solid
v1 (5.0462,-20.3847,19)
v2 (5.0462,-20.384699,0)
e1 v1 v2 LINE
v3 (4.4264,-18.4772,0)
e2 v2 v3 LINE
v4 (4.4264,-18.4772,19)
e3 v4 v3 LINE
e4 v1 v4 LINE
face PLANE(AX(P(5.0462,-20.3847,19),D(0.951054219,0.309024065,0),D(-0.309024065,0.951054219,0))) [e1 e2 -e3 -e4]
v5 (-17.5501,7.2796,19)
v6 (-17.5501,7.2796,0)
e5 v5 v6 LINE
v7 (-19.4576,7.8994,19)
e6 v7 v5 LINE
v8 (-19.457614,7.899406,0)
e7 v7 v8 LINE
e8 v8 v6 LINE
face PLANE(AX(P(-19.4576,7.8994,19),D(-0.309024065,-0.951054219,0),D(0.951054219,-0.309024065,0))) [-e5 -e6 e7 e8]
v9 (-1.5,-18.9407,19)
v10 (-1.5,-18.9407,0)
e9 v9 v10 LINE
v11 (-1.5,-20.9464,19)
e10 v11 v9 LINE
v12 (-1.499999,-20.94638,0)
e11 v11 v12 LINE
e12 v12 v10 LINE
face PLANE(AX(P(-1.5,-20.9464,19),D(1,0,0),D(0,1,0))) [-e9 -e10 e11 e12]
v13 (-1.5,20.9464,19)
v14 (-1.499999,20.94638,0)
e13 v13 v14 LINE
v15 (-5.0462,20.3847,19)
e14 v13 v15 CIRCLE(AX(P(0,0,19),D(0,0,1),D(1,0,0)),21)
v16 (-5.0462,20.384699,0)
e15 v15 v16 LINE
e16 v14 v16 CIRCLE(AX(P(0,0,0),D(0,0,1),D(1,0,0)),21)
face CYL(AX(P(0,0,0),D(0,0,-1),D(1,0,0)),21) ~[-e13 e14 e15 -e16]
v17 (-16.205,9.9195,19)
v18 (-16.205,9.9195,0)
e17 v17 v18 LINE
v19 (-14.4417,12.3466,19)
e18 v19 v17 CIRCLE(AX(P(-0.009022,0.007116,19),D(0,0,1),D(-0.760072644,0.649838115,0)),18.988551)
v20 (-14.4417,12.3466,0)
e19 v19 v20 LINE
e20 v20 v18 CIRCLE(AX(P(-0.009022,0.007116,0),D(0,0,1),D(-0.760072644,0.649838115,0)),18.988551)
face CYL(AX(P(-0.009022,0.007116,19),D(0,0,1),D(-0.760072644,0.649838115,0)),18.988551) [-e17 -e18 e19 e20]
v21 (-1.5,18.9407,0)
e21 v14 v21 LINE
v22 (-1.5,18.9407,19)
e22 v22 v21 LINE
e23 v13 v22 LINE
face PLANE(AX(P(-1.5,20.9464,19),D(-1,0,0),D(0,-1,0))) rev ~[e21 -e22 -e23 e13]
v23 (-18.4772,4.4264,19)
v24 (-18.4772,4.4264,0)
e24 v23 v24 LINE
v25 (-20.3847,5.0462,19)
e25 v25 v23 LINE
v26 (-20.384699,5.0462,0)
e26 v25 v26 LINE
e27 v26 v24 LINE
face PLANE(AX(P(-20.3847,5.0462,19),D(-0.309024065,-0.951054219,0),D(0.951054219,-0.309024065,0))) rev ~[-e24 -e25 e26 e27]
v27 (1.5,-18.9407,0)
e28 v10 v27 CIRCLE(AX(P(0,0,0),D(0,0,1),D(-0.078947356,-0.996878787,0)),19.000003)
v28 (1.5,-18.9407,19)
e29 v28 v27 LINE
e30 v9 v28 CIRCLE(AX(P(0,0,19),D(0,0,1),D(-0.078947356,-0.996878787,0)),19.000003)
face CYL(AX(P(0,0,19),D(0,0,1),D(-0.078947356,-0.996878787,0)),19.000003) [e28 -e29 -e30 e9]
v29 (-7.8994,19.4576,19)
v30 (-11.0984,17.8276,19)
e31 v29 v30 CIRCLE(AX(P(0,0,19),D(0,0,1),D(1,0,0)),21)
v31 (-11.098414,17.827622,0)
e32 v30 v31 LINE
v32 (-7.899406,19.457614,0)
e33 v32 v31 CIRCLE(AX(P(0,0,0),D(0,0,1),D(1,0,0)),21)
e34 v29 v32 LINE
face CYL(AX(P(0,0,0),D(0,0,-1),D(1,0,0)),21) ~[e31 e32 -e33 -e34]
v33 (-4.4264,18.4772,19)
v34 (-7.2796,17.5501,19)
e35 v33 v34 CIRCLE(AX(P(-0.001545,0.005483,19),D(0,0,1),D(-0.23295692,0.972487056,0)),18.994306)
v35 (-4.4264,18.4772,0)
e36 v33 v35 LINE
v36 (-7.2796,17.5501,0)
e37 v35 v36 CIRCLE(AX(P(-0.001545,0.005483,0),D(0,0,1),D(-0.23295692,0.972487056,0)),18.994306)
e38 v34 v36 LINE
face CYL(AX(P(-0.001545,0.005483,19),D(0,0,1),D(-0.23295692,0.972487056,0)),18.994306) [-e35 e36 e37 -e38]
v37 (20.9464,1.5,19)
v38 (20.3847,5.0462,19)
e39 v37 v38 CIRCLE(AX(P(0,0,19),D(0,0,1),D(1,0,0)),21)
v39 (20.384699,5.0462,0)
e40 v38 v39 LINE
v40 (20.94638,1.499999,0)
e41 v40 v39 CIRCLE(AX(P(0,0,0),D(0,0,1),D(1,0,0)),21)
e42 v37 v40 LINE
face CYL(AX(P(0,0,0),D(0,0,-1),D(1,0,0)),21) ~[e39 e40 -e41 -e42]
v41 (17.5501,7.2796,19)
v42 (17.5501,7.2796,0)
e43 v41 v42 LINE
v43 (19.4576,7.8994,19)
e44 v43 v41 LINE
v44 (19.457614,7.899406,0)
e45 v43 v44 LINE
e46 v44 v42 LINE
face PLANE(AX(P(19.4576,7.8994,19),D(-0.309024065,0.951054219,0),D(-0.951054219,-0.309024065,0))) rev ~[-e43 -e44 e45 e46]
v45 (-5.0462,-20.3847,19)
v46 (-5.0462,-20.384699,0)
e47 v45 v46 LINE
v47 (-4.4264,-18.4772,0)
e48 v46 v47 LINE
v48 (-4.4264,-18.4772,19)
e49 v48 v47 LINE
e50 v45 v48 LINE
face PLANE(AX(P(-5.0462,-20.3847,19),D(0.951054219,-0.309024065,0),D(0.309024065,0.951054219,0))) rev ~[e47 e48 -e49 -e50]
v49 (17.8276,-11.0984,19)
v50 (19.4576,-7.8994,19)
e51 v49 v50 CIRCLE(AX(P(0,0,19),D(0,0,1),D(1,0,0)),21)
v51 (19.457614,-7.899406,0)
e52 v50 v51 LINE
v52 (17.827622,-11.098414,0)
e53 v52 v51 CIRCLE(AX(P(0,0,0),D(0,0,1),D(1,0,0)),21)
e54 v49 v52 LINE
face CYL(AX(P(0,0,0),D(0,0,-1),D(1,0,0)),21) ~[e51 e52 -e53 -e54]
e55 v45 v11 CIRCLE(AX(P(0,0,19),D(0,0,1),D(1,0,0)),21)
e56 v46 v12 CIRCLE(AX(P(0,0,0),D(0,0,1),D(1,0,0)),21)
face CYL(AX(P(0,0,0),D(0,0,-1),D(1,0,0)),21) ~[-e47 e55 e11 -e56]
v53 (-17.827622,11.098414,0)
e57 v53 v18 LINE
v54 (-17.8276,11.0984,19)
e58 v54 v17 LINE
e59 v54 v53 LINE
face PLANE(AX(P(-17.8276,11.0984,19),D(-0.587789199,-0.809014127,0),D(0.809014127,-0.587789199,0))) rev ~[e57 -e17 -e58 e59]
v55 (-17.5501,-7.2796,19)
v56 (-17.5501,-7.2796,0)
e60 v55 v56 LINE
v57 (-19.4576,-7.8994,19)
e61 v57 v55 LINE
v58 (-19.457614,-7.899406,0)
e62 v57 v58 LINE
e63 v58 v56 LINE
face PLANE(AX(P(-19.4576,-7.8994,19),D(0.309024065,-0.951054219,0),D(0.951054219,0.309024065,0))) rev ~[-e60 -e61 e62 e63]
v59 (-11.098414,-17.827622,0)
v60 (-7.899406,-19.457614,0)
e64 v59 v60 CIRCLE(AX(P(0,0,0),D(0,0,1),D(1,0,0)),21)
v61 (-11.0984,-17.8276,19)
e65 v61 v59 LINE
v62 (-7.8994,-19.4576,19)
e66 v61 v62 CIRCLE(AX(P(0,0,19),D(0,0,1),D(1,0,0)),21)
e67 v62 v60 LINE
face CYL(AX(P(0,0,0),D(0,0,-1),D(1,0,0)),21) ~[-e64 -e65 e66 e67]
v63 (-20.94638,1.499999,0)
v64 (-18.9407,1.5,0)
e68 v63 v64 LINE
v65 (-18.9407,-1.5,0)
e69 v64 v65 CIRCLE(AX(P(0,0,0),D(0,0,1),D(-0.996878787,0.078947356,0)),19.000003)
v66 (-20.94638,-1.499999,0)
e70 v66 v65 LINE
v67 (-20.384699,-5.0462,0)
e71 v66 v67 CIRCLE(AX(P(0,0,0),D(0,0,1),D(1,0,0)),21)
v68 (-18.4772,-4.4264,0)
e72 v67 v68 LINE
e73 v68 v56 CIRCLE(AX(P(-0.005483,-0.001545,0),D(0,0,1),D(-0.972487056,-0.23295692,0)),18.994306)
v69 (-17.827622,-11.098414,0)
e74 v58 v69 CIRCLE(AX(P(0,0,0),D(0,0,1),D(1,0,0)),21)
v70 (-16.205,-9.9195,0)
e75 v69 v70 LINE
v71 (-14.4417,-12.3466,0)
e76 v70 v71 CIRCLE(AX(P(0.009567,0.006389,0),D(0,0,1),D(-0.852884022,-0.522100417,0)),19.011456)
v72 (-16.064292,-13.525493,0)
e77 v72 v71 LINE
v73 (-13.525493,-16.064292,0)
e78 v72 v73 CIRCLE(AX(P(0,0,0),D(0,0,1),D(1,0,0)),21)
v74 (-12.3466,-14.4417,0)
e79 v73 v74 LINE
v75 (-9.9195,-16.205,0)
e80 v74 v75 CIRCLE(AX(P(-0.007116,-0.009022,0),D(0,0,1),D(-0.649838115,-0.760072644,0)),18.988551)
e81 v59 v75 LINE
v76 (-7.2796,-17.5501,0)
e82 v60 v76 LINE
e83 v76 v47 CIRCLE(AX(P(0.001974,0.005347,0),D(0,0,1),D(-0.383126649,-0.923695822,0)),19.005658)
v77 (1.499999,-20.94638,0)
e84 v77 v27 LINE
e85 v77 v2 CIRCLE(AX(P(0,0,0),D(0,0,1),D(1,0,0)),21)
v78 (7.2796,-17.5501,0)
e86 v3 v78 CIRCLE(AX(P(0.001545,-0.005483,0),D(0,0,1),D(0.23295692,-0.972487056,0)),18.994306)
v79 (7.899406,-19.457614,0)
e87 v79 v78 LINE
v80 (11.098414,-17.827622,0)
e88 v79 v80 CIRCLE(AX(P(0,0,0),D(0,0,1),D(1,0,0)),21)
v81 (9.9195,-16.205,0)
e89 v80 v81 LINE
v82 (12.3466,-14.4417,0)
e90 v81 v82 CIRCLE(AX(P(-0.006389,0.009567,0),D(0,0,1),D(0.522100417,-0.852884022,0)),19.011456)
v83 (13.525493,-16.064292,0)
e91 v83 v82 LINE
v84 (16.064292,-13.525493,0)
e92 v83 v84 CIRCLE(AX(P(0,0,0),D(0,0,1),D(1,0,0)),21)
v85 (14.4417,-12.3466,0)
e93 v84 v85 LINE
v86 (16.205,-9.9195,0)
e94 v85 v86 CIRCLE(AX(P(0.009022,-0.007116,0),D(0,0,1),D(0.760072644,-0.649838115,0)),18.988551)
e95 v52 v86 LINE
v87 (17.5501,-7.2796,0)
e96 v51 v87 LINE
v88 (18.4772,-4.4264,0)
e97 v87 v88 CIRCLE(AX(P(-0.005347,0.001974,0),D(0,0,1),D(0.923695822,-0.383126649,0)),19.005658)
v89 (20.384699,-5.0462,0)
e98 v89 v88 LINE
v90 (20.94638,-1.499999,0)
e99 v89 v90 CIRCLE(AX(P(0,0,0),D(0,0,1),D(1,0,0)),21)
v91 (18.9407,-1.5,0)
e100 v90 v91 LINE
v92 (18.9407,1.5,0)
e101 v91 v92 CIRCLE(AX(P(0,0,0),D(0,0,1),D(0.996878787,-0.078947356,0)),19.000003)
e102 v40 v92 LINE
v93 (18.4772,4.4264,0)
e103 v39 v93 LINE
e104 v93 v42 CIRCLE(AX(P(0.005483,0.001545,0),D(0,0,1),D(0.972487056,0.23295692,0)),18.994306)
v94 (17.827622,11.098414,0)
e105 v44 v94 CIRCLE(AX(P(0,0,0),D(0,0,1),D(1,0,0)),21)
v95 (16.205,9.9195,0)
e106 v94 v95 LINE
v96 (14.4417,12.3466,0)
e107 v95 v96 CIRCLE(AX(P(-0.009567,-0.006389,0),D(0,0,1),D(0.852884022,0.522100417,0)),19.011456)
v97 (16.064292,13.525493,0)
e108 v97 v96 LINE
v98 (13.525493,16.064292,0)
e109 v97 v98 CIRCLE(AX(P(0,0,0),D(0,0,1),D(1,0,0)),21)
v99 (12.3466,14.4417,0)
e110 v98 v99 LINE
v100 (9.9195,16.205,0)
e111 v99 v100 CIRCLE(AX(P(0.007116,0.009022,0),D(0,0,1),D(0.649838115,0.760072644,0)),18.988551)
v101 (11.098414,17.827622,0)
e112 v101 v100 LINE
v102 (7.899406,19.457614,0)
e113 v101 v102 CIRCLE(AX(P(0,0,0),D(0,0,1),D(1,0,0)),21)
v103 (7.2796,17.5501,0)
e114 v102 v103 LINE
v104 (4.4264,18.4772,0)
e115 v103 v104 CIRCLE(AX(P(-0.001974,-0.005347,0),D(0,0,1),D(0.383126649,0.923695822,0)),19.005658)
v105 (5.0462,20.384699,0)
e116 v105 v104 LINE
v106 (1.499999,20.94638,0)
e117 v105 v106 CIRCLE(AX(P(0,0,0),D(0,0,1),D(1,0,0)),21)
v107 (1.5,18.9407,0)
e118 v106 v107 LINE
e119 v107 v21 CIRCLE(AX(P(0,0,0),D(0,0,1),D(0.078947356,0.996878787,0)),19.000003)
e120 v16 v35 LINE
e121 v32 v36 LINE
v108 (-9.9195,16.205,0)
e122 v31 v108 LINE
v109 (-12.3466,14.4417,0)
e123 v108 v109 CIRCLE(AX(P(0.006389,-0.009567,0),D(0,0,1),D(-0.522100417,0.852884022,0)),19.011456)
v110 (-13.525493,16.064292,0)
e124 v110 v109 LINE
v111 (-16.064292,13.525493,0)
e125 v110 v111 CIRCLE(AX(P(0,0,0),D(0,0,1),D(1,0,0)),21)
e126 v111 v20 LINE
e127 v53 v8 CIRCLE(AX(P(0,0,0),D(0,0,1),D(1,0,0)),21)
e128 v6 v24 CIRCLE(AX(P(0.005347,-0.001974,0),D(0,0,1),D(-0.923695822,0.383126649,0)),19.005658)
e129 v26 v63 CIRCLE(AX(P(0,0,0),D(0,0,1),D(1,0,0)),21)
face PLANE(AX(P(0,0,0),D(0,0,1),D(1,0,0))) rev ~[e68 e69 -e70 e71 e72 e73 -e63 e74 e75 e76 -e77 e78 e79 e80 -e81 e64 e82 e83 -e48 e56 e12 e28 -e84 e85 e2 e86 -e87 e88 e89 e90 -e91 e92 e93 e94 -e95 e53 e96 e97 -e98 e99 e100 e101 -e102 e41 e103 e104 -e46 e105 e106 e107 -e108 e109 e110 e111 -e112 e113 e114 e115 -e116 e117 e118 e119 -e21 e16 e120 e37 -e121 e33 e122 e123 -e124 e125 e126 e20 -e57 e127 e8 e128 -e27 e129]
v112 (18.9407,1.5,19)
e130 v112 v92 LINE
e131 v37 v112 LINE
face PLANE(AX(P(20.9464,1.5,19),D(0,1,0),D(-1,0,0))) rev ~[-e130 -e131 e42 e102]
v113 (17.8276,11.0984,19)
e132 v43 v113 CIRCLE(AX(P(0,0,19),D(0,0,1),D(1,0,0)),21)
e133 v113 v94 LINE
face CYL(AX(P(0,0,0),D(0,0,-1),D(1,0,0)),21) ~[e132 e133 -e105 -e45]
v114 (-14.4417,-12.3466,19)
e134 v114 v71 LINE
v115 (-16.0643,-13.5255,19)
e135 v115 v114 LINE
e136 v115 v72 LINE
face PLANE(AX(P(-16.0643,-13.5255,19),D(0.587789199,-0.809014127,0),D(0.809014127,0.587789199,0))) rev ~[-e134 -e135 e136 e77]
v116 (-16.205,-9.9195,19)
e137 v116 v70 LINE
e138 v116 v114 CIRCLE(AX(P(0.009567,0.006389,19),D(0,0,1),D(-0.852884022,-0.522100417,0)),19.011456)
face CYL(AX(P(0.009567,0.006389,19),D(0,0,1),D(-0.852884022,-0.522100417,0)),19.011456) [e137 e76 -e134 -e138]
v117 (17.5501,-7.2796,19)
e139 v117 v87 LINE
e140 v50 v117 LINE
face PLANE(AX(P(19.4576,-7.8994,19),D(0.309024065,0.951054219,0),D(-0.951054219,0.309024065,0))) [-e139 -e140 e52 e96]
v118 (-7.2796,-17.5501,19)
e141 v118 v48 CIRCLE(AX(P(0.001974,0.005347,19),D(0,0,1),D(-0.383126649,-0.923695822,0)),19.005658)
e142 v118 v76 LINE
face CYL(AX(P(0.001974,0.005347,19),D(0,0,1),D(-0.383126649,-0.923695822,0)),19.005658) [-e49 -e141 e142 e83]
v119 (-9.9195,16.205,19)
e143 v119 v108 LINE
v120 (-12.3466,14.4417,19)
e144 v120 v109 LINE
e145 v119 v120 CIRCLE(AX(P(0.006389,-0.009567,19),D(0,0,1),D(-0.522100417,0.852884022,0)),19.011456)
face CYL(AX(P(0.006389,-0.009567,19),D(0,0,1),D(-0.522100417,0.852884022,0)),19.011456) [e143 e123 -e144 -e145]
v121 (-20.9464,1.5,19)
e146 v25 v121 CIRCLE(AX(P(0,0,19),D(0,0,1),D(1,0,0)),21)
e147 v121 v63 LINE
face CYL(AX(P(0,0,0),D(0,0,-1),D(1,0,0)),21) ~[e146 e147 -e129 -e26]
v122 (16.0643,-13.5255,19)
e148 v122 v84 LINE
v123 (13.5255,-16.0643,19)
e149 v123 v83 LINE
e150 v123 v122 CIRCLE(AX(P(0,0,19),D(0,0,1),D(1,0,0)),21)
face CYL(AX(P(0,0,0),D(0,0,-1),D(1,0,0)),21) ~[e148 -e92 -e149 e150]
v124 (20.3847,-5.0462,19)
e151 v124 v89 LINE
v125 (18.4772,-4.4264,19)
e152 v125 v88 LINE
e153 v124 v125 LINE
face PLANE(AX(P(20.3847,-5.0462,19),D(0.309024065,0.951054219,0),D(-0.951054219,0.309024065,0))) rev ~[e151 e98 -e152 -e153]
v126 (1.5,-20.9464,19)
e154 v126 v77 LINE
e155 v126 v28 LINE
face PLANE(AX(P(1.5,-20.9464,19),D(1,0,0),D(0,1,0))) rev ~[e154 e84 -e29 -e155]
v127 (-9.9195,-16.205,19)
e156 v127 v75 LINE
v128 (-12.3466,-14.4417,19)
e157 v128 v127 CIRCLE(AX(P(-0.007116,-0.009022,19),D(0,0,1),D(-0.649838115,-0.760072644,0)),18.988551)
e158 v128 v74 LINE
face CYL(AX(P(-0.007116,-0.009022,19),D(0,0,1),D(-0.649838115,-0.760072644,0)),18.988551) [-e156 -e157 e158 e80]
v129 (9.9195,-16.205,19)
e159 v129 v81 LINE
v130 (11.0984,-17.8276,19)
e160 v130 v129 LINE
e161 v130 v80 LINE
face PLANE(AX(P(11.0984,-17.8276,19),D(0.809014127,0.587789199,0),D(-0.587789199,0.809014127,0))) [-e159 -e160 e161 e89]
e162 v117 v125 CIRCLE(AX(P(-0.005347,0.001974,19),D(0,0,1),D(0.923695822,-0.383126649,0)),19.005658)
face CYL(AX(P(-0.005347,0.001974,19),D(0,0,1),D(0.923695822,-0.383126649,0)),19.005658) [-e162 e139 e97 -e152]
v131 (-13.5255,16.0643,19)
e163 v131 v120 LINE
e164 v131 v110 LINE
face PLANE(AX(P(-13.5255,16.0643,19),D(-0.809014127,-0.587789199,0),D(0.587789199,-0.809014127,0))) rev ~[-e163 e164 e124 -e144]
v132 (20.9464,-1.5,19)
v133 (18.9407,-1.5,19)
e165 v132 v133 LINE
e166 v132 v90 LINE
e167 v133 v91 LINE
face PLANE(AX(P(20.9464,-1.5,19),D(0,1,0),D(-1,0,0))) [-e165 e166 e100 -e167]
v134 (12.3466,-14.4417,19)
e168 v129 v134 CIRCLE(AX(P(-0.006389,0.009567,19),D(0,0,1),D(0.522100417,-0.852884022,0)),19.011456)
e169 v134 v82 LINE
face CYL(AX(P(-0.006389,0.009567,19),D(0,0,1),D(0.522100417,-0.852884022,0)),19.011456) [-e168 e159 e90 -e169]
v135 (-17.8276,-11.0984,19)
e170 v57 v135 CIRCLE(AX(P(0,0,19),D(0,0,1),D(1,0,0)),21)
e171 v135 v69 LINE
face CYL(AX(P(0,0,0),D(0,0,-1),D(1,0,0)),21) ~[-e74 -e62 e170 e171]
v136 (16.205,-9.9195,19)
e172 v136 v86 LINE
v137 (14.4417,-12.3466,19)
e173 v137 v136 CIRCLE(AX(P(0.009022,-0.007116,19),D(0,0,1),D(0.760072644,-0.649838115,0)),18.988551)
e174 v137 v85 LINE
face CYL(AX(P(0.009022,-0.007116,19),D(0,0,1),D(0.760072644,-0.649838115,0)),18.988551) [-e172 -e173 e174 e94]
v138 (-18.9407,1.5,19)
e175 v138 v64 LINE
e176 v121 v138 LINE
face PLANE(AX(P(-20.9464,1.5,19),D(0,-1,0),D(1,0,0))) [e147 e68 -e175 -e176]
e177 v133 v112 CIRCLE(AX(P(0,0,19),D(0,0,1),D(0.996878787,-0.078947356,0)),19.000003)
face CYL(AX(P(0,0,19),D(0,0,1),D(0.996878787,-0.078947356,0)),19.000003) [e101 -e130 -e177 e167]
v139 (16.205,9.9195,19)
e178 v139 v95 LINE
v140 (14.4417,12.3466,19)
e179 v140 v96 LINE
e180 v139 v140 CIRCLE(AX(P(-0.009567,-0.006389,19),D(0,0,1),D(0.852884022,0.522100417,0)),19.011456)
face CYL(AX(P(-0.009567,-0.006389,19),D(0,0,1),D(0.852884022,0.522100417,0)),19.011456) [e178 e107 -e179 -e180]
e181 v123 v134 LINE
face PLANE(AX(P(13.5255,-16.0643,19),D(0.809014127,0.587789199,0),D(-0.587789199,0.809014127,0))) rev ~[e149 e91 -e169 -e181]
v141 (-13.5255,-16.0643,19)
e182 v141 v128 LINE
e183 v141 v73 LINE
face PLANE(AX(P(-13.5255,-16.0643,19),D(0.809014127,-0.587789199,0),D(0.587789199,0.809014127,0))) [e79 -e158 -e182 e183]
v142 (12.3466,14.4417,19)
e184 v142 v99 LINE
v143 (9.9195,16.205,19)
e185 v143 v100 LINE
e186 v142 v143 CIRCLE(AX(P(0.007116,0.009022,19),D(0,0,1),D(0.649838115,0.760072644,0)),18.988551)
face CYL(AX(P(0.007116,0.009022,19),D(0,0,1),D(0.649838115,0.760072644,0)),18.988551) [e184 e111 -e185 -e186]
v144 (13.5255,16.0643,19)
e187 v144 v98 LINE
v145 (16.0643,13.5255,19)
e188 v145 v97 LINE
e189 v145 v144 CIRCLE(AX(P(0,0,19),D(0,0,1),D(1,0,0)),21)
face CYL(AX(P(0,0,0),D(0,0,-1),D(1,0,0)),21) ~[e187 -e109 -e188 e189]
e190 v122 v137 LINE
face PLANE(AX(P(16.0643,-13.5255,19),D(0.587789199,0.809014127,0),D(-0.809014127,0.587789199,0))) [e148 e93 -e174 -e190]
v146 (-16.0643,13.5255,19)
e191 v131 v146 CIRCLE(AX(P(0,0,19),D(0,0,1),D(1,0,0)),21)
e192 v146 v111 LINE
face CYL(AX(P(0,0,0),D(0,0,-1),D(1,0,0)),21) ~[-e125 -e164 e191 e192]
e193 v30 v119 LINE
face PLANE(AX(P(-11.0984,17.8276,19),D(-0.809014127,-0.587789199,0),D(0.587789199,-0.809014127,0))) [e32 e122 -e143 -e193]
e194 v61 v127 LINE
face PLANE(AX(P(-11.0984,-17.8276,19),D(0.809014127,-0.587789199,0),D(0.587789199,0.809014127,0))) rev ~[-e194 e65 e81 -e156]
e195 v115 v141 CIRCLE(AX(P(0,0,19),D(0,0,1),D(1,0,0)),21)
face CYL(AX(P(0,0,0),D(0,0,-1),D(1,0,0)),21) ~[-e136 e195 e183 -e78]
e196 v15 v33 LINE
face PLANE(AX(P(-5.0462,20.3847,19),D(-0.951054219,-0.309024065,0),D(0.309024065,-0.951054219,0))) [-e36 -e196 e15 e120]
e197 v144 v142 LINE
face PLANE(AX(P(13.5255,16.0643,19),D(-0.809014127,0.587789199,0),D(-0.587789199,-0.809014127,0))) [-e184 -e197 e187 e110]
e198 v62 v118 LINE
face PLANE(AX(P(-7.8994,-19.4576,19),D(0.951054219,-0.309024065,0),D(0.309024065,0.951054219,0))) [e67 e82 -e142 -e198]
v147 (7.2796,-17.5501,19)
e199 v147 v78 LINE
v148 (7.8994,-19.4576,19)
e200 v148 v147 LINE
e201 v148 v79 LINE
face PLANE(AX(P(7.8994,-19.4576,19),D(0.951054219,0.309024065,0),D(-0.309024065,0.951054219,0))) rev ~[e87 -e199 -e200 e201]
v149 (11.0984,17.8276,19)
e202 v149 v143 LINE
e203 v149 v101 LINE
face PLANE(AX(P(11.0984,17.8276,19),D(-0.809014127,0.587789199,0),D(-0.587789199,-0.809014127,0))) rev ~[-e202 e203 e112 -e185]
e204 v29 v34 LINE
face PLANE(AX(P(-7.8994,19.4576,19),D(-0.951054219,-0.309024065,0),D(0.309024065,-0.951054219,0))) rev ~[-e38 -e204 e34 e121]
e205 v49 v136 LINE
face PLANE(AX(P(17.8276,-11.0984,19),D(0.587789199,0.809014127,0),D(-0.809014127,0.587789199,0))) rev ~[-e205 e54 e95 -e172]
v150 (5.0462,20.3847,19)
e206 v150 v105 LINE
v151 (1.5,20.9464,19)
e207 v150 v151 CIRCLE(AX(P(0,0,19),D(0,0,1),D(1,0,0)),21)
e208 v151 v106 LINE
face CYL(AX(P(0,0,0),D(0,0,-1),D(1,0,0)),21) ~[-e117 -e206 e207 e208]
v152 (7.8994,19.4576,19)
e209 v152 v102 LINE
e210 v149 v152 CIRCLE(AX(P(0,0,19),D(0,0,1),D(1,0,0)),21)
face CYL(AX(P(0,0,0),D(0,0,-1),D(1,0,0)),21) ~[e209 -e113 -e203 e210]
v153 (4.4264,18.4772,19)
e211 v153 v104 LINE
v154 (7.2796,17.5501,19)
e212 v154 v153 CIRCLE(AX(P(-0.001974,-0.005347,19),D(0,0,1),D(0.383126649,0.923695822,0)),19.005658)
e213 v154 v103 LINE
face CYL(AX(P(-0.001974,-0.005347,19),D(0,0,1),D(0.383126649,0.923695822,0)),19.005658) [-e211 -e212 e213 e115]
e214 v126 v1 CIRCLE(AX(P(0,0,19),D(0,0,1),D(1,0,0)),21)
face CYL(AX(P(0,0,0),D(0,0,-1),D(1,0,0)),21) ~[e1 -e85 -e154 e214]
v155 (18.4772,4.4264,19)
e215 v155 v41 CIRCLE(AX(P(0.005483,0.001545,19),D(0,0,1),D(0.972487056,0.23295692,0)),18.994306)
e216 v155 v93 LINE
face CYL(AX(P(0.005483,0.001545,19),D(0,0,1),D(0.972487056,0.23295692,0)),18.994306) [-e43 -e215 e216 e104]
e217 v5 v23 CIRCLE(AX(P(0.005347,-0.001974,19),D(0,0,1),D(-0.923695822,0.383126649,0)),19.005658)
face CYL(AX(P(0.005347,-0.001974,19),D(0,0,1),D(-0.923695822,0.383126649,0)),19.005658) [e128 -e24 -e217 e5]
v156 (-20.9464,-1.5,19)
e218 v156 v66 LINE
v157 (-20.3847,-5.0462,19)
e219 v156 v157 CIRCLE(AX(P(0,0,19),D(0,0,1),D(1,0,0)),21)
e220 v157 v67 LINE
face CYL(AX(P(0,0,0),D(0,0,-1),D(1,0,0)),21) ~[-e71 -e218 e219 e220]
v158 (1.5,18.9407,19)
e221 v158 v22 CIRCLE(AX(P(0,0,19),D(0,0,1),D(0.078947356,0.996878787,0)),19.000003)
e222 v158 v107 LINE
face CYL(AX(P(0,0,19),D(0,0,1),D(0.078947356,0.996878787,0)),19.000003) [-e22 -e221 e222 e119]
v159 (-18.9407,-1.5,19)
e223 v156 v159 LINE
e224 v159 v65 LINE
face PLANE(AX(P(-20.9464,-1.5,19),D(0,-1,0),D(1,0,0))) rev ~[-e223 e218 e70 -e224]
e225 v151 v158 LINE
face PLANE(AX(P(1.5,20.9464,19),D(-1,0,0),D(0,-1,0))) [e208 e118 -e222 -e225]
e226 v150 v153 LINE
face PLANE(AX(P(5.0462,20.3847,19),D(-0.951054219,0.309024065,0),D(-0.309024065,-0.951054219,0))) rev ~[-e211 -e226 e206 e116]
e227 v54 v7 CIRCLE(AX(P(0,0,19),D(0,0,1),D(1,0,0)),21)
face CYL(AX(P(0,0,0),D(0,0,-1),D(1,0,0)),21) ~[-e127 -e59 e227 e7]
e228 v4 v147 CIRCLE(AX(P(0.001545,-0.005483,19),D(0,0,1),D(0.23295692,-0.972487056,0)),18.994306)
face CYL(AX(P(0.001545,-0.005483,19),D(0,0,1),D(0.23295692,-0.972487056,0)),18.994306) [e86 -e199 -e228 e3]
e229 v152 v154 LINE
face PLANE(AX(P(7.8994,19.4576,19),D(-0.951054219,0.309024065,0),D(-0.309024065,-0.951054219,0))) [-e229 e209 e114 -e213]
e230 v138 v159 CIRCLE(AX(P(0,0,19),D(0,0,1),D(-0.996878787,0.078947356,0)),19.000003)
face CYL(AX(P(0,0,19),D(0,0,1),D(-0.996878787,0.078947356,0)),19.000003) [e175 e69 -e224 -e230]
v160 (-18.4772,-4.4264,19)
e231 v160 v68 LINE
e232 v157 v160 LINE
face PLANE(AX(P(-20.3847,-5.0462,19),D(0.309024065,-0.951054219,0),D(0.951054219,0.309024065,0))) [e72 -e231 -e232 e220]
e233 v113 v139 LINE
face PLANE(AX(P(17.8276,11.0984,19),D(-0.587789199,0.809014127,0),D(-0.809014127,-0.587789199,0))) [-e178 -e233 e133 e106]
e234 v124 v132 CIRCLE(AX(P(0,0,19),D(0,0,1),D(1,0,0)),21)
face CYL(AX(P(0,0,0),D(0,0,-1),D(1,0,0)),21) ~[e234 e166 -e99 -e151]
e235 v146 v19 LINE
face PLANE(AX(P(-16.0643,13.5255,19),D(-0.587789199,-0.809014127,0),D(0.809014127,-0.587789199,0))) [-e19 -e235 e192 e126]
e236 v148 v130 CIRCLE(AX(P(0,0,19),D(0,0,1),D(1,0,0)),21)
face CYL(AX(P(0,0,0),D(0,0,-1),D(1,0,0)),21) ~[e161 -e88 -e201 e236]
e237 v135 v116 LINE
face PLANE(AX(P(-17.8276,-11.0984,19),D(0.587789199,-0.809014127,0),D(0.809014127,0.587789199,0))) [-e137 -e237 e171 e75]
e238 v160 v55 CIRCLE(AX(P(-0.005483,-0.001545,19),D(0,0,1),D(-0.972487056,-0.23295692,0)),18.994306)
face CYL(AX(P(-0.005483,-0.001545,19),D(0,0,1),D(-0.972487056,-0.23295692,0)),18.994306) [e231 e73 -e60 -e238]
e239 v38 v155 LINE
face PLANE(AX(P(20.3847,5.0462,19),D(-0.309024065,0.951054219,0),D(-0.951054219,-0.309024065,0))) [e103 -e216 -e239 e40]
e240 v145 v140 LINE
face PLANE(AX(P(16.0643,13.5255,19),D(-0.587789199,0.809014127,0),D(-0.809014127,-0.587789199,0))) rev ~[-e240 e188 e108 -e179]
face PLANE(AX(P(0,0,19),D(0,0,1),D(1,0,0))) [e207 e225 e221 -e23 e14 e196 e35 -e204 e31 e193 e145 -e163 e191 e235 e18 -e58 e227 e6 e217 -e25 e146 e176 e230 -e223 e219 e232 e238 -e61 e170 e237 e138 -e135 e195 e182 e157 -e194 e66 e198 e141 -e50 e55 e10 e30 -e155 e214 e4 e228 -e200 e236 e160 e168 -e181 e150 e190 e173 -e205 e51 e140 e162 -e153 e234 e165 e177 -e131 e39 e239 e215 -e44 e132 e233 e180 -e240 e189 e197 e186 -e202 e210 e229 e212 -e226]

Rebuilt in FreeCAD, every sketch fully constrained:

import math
import FreeCAD as App
import Part
import Sketcher

doc = App.newDocument("Part")
body = doc.addObject("PartDesign::Body", "Body")

sketch1 = body.newObject("Sketcher::SketchObject", "Sketch")
sketch1.AttachmentSupport = (doc.getObject("XY_Plane"), [""])
sketch1.MapMode = "FlatFace"
sketch1.addGeometry(Part.Circle(App.Vector(0, 0, 0), App.Vector(0, 0, 1), 21), False)
sketch1.addConstraint([
    Sketcher.Constraint("Coincident", 0, 3, -1, 1),
    Sketcher.Constraint("Diameter", 0, 42.0),
])
pad1 = body.newObject("PartDesign::Pad", "Pad")
pad1.Profile = sketch1
pad1.Length = 19

sketch2 = body.newObject("Sketcher::SketchObject", "Sketch001")
sketch2.AttachmentSupport = (doc.getObject("XY_Plane"), [""])
sketch2.MapMode = "FlatFace"
sketch2.AttachmentOffset = App.Placement(App.Vector(0, 0, 19), App.Rotation())
sketch2.addGeometry([
    Part.ArcOfCircle(Part.Circle(App.Vector(0, 0, 0), App.Vector(0, 0, 1), 21), math.radians(-4.096036), math.radians(4.096036)),
    Part.LineSegment(App.Vector(20.9464, 1.5, 0), App.Vector(18.9407, 1.5, 0)),
    Part.ArcOfCircle(Part.Circle(App.Vector(0, 0, 0), App.Vector(0, 0, 1), 19.000003), math.radians(-4.528062), math.radians(4.528062)),
    Part.LineSegment(App.Vector(18.9407, -1.5, 0), App.Vector(20.9464, -1.5, 0)),
    Part.LineSegment(App.Vector(18.4772, 4.4264, 0), App.Vector(20.3847, 5.0462, 0)),
    Part.ArcOfCircle(Part.Circle(App.Vector(0, 0, 0), App.Vector(0, 0, 1), 21), math.radians(13.903964), math.radians(22.096178)),
    Part.LineSegment(App.Vector(19.4576, 7.8994, 0), App.Vector(17.5501, 7.2796, 0)),
    Part.ArcOfCircle(Part.Circle(App.Vector(0.005483, 0.001545, 0), App.Vector(0, 0, 1), 18.994306), math.radians(13.471221), math.radians(22.5302)),
    Part.ArcOfCircle(Part.Circle(App.Vector(0, 0, 0), App.Vector(0, 0, 1), 21), math.radians(-22.096178), math.radians(-13.903964)),
    Part.LineSegment(App.Vector(20.3847, -5.0462, 0), App.Vector(18.4772, -4.4264, 0)),
    Part.ArcOfCircle(Part.Circle(App.Vector(-0.005347, 0.001974, 0), App.Vector(0, 0, 1), 19.005658), math.radians(-22.527489), math.radians(-13.473932)),
    Part.LineSegment(App.Vector(17.5501, -7.2796, 0), App.Vector(19.4576, -7.8994, 0)),
    Part.LineSegment(App.Vector(16.205, 9.9195, 0), App.Vector(17.8276, 11.0984, 0)),
    Part.ArcOfCircle(Part.Circle(App.Vector(0, 0, 0), App.Vector(0, 0, 1), 21), math.radians(31.903929), math.radians(40.096042)),
    Part.LineSegment(App.Vector(16.0643, 13.5255, 0), App.Vector(14.4417, 12.3466, 0)),
    Part.ArcOfCircle(Part.Circle(App.Vector(-0.009567, -0.006389, 0), App.Vector(0, 0, 1), 19.011456), math.radians(31.473249), math.radians(40.523927)),
    Part.ArcOfCircle(Part.Circle(App.Vector(0, 0, 0), App.Vector(0, 0, 1), 21), math.radians(-40.096042), math.radians(-31.903929)),
    Part.LineSegment(App.Vector(17.8276, -11.0984, 0), App.Vector(16.205, -9.9195, 0)),
    Part.ArcOfCircle(Part.Circle(App.Vector(0.009022, -0.007116, 0), App.Vector(0, 0, 1), 18.988551), math.radians(-40.529398), math.radians(-31.467779)),
    Part.LineSegment(App.Vector(14.4417, -12.3466, 0), App.Vector(16.0643, -13.5255, 0)),
    Part.LineSegment(App.Vector(12.3466, 14.4417, 0), App.Vector(13.5255, 16.0643, 0)),
    Part.ArcOfCircle(Part.Circle(App.Vector(0, 0, 0), App.Vector(0, 0, 1), 21), math.radians(49.903958), math.radians(58.096071)),
    Part.LineSegment(App.Vector(11.0984, 17.8276, 0), App.Vector(9.9195, 16.205, 0)),
    Part.ArcOfCircle(Part.Circle(App.Vector(0.007116, 0.009022, 0), App.Vector(0, 0, 1), 18.988551), math.radians(49.470602), math.radians(58.532221)),
    Part.ArcOfCircle(Part.Circle(App.Vector(0, 0, 0), App.Vector(0, 0, 1), 21), math.radians(-58.096071), math.radians(-49.903958)),
    Part.LineSegment(App.Vector(13.5255, -16.0643, 0), App.Vector(12.3466, -14.4417, 0)),
    Part.ArcOfCircle(Part.Circle(App.Vector(-0.006389, 0.009567, 0), App.Vector(0, 0, 1), 19.011456), math.radians(-58.526751), math.radians(-49.476073)),
    Part.LineSegment(App.Vector(9.9195, -16.205, 0), App.Vector(11.0984, -17.8276, 0)),
    Part.LineSegment(App.Vector(7.2796, 17.5501, 0), App.Vector(7.8994, 19.4576, 0)),
    Part.ArcOfCircle(Part.Circle(App.Vector(0, 0, 0), App.Vector(0, 0, 1), 21), math.radians(67.903822), math.radians(76.096036)),
    Part.LineSegment(App.Vector(5.0462, 20.3847, 0), App.Vector(4.4264, 18.4772, 0)),
    Part.ArcOfCircle(Part.Circle(App.Vector(-0.001974, -0.005347, 0), App.Vector(0, 0, 1), 19.005658), math.radians(67.472511), math.radians(76.526068)),
    Part.ArcOfCircle(Part.Circle(App.Vector(0, 0, 0), App.Vector(0, 0, 1), 21), math.radians(-76.096036), math.radians(-67.903822)),
    Part.LineSegment(App.Vector(7.8994, -19.4576, 0), App.Vector(7.2796, -17.5501, 0)),
    Part.ArcOfCircle(Part.Circle(App.Vector(0.001545, -0.005483, 0), App.Vector(0, 0, 1), 18.994306), math.radians(-76.528779), math.radians(-67.4698)),
    Part.LineSegment(App.Vector(4.4264, -18.4772, 0), App.Vector(5.0462, -20.3847, 0)),
    Part.LineSegment(App.Vector(1.5, 18.9407, 0), App.Vector(1.5, 20.9464, 0)),
    Part.ArcOfCircle(Part.Circle(App.Vector(0, 0, 0), App.Vector(0, 0, 1), 21), math.radians(85.903964), math.radians(94.096036)),
    Part.LineSegment(App.Vector(-1.5, 20.9464, 0), App.Vector(-1.5, 18.9407, 0)),
    Part.ArcOfCircle(Part.Circle(App.Vector(0, 0, 0), App.Vector(0, 0, 1), 19.000003), math.radians(85.471938), math.radians(94.528062)),
    Part.ArcOfCircle(Part.Circle(App.Vector(0, 0, 0), App.Vector(0, 0, 1), 21), math.radians(-94.096036), math.radians(-85.903964)),
    Part.LineSegment(App.Vector(1.5, -20.9464, 0), App.Vector(1.5, -18.9407, 0)),
    Part.ArcOfCircle(Part.Circle(App.Vector(0, 0, 0), App.Vector(0, 0, 1), 19.000003), math.radians(-94.528062), math.radians(-85.471938)),
    Part.LineSegment(App.Vector(-1.5, -18.9407, 0), App.Vector(-1.5, -20.9464, 0)),
    Part.LineSegment(App.Vector(-4.4264, 18.4772, 0), App.Vector(-5.0462, 20.3847, 0)),
    Part.ArcOfCircle(Part.Circle(App.Vector(0, 0, 0), App.Vector(0, 0, 1), 21), math.radians(103.903964), math.radians(112.096178)),
    Part.LineSegment(App.Vector(-7.8994, 19.4576, 0), App.Vector(-7.2796, 17.5501, 0)),
    Part.ArcOfCircle(Part.Circle(App.Vector(-0.001545, 0.005483, 0), App.Vector(0, 0, 1), 18.994306), math.radians(103.471221), math.radians(112.5302)),
    Part.ArcOfCircle(Part.Circle(App.Vector(0, 0, 0), App.Vector(0, 0, 1), 21), math.radians(-112.096178), math.radians(-103.903964)),
    Part.LineSegment(App.Vector(-5.0462, -20.3847, 0), App.Vector(-4.4264, -18.4772, 0)),
    Part.ArcOfCircle(Part.Circle(App.Vector(0.001974, 0.005347, 0), App.Vector(0, 0, 1), 19.005658), math.radians(-112.527489), math.radians(-103.473932)),
    Part.LineSegment(App.Vector(-7.2796, -17.5501, 0), App.Vector(-7.8994, -19.4576, 0)),
    Part.LineSegment(App.Vector(-9.9195, 16.205, 0), App.Vector(-11.0984, 17.8276, 0)),
    Part.ArcOfCircle(Part.Circle(App.Vector(0, 0, 0), App.Vector(0, 0, 1), 21), math.radians(121.903929), math.radians(130.096042)),
    Part.LineSegment(App.Vector(-13.5255, 16.0643, 0), App.Vector(-12.3466, 14.4417, 0)),
    Part.ArcOfCircle(Part.Circle(App.Vector(0.006389, -0.009567, 0), App.Vector(0, 0, 1), 19.011456), math.radians(121.473249), math.radians(130.523927)),
    Part.ArcOfCircle(Part.Circle(App.Vector(0, 0, 0), App.Vector(0, 0, 1), 21), math.radians(-130.096042), math.radians(-121.903929)),
    Part.LineSegment(App.Vector(-11.0984, -17.8276, 0), App.Vector(-9.9195, -16.205, 0)),
    Part.ArcOfCircle(Part.Circle(App.Vector(-0.007116, -0.009022, 0), App.Vector(0, 0, 1), 18.988551), math.radians(-130.529398), math.radians(-121.467779)),
    Part.LineSegment(App.Vector(-12.3466, -14.4417, 0), App.Vector(-13.5255, -16.0643, 0)),
    Part.LineSegment(App.Vector(-14.4417, 12.3466, 0), App.Vector(-16.0643, 13.5255, 0)),
    Part.ArcOfCircle(Part.Circle(App.Vector(0, 0, 0), App.Vector(0, 0, 1), 21), math.radians(139.903958), math.radians(148.096071)),
    Part.LineSegment(App.Vector(-17.8276, 11.0984, 0), App.Vector(-16.205, 9.9195, 0)),
    Part.ArcOfCircle(Part.Circle(App.Vector(-0.009022, 0.007116, 0), App.Vector(0, 0, 1), 18.988551), math.radians(139.470602), math.radians(148.532221)),
    Part.ArcOfCircle(Part.Circle(App.Vector(0, 0, 0), App.Vector(0, 0, 1), 21), math.radians(-148.096071), math.radians(-139.903958)),
    Part.LineSegment(App.Vector(-16.0643, -13.5255, 0), App.Vector(-14.4417, -12.3466, 0)),
    Part.ArcOfCircle(Part.Circle(App.Vector(0.009567, 0.006389, 0), App.Vector(0, 0, 1), 19.011456), math.radians(-148.526751), math.radians(-139.476073)),
    Part.LineSegment(App.Vector(-16.205, -9.9195, 0), App.Vector(-17.8276, -11.0984, 0)),
    Part.LineSegment(App.Vector(-17.5501, 7.2796, 0), App.Vector(-19.4576, 7.8994, 0)),
    Part.ArcOfCircle(Part.Circle(App.Vector(0, 0, 0), App.Vector(0, 0, 1), 21), math.radians(157.903822), math.radians(166.096036)),
    Part.LineSegment(App.Vector(-20.3847, 5.0462, 0), App.Vector(-18.4772, 4.4264, 0)),
    Part.ArcOfCircle(Part.Circle(App.Vector(0.005347, -0.001974, 0), App.Vector(0, 0, 1), 19.005658), math.radians(157.472511), math.radians(166.526068)),
    Part.ArcOfCircle(Part.Circle(App.Vector(0, 0, 0), App.Vector(0, 0, 1), 21), math.radians(-166.096036), math.radians(-157.903822)),
    Part.LineSegment(App.Vector(-19.4576, -7.8994, 0), App.Vector(-17.5501, -7.2796, 0)),
    Part.ArcOfCircle(Part.Circle(App.Vector(-0.005483, -0.001545, 0), App.Vector(0, 0, 1), 18.994306), math.radians(-166.528779), math.radians(-157.4698)),
    Part.LineSegment(App.Vector(-18.4772, -4.4264, 0), App.Vector(-20.3847, -5.0462, 0)),
    Part.LineSegment(App.Vector(-18.9407, 1.5, 0), App.Vector(-20.9464, 1.5, 0)),
    Part.ArcOfCircle(Part.Circle(App.Vector(0, 0, 0), App.Vector(0, 0, 1), 21), math.radians(175.903964), math.radians(184.096036)),
    Part.LineSegment(App.Vector(-20.9464, -1.5, 0), App.Vector(-18.9407, -1.5, 0)),
    Part.ArcOfCircle(Part.Circle(App.Vector(0, 0, 0), App.Vector(0, 0, 1), 19.000003), math.radians(175.471938), math.radians(184.528062)),
], False)
sketch2.addConstraint([
    Sketcher.Constraint("Coincident", 0, 2, 1, 1),
    Sketcher.Constraint("Coincident", 1, 2, 2, 2),
    Sketcher.Constraint("Coincident", 2, 1, 3, 1),
    Sketcher.Constraint("Coincident", 3, 2, 0, 1),
    Sketcher.Constraint("Coincident", 4, 2, 5, 1),
    Sketcher.Constraint("Coincident", 5, 2, 6, 1),
    Sketcher.Constraint("Coincident", 6, 2, 7, 2),
    Sketcher.Constraint("Coincident", 7, 1, 4, 1),
    Sketcher.Constraint("Coincident", 8, 2, 9, 1),
    Sketcher.Constraint("Coincident", 9, 2, 10, 2),
    Sketcher.Constraint("Coincident", 10, 1, 11, 1),
    Sketcher.Constraint("Coincident", 11, 2, 8, 1),
    Sketcher.Constraint("Coincident", 12, 2, 13, 1),
    Sketcher.Constraint("Coincident", 13, 2, 14, 1),
    Sketcher.Constraint("Coincident", 14, 2, 15, 2),
    Sketcher.Constraint("Coincident", 15, 1, 12, 1),
    Sketcher.Constraint("Coincident", 16, 2, 17, 1),
    Sketcher.Constraint("Coincident", 17, 2, 18, 2),
    Sketcher.Constraint("Coincident", 18, 1, 19, 1),
    Sketcher.Constraint("Coincident", 19, 2, 16, 1),
    Sketcher.Constraint("Coincident", 20, 2, 21, 1),
    Sketcher.Constraint("Coincident", 21, 2, 22, 1),
    Sketcher.Constraint("Coincident", 22, 2, 23, 2),
    Sketcher.Constraint("Coincident", 23, 1, 20, 1),
    Sketcher.Constraint("Coincident", 24, 2, 25, 1),
    Sketcher.Constraint("Coincident", 25, 2, 26, 2),
    Sketcher.Constraint("Coincident", 26, 1, 27, 1),
    Sketcher.Constraint("Coincident", 27, 2, 24, 1),
    Sketcher.Constraint("Coincident", 28, 2, 29, 1),
    Sketcher.Constraint("Coincident", 29, 2, 30, 1),
    Sketcher.Constraint("Coincident", 30, 2, 31, 2),
    Sketcher.Constraint("Coincident", 31, 1, 28, 1),
    Sketcher.Constraint("Coincident", 32, 2, 33, 1),
    Sketcher.Constraint("Coincident", 33, 2, 34, 2),
    Sketcher.Constraint("Coincident", 34, 1, 35, 1),
    Sketcher.Constraint("Coincident", 35, 2, 32, 1),
    Sketcher.Constraint("Coincident", 36, 2, 37, 1),
    Sketcher.Constraint("Coincident", 37, 2, 38, 1),
    Sketcher.Constraint("Coincident", 38, 2, 39, 2),
    Sketcher.Constraint("Coincident", 39, 1, 36, 1),
    Sketcher.Constraint("Coincident", 40, 2, 41, 1),
    Sketcher.Constraint("Coincident", 41, 2, 42, 2),
    Sketcher.Constraint("Coincident", 42, 1, 43, 1),
    Sketcher.Constraint("Coincident", 43, 2, 40, 1),
    Sketcher.Constraint("Coincident", 44, 2, 45, 1),
    Sketcher.Constraint("Coincident", 45, 2, 46, 1),
    Sketcher.Constraint("Coincident", 46, 2, 47, 2),
    Sketcher.Constraint("Coincident", 47, 1, 44, 1),
    Sketcher.Constraint("Coincident", 48, 2, 49, 1),
    Sketcher.Constraint("Coincident", 49, 2, 50, 2),
    Sketcher.Constraint("Coincident", 50, 1, 51, 1),
    Sketcher.Constraint("Coincident", 51, 2, 48, 1),
    Sketcher.Constraint("Coincident", 52, 2, 53, 1),
    Sketcher.Constraint("Coincident", 53, 2, 54, 1),
    Sketcher.Constraint("Coincident", 54, 2, 55, 2),
    Sketcher.Constraint("Coincident", 55, 1, 52, 1),
    Sketcher.Constraint("Coincident", 56, 2, 57, 1),
    Sketcher.Constraint("Coincident", 57, 2, 58, 2),
    Sketcher.Constraint("Coincident", 58, 1, 59, 1),
    Sketcher.Constraint("Coincident", 59, 2, 56, 1),
    Sketcher.Constraint("Coincident", 60, 2, 61, 1),
    Sketcher.Constraint("Coincident", 61, 2, 62, 1),
    Sketcher.Constraint("Coincident", 62, 2, 63, 2),
    Sketcher.Constraint("Coincident", 63, 1, 60, 1),
    Sketcher.Constraint("Coincident", 64, 2, 65, 1),
    Sketcher.Constraint("Coincident", 65, 2, 66, 2),
    Sketcher.Constraint("Coincident", 66, 1, 67, 1),
    Sketcher.Constraint("Coincident", 67, 2, 64, 1),
    Sketcher.Constraint("Coincident", 68, 2, 69, 1),
    Sketcher.Constraint("Coincident", 69, 2, 70, 1),
    Sketcher.Constraint("Coincident", 70, 2, 71, 2),
    Sketcher.Constraint("Coincident", 71, 1, 68, 1),
    Sketcher.Constraint("Coincident", 72, 2, 73, 1),
    Sketcher.Constraint("Coincident", 73, 2, 74, 2),
    Sketcher.Constraint("Coincident", 74, 1, 75, 1),
    Sketcher.Constraint("Coincident", 75, 2, 72, 1),
    Sketcher.Constraint("Coincident", 76, 2, 77, 1),
    Sketcher.Constraint("Coincident", 77, 2, 78, 1),
    Sketcher.Constraint("Coincident", 78, 2, 79, 2),
    Sketcher.Constraint("Coincident", 79, 1, 76, 1),
    Sketcher.Constraint("Horizontal", 1),
    Sketcher.Constraint("Horizontal", 3),
    Sketcher.Constraint("Vertical", 36),
    Sketcher.Constraint("Vertical", 38),
    Sketcher.Constraint("Vertical", 41),
    Sketcher.Constraint("Vertical", 43),
    Sketcher.Constraint("Horizontal", 76),
    Sketcher.Constraint("Horizontal", 78),
    Sketcher.Constraint("Coincident", 0, 3, -1, 1),
    Sketcher.Constraint("Coincident", 2, 3, -1, 1),
    Sketcher.Constraint("Coincident", 5, 3, -1, 1),
    Sketcher.Constraint("Coincident", 8, 3, -1, 1),
    Sketcher.Constraint("Coincident", 13, 3, -1, 1),
    Sketcher.Constraint("Coincident", 16, 3, -1, 1),
    Sketcher.Constraint("Coincident", 21, 3, -1, 1),
    Sketcher.Constraint("Coincident", 24, 3, -1, 1),
    Sketcher.Constraint("Coincident", 29, 3, -1, 1),
    Sketcher.Constraint("Coincident", 32, 3, -1, 1),
    Sketcher.Constraint("Coincident", 37, 3, -1, 1),
    Sketcher.Constraint("Coincident", 39, 3, -1, 1),
    Sketcher.Constraint("Coincident", 40, 3, -1, 1),
    Sketcher.Constraint("Coincident", 42, 3, -1, 1),
    Sketcher.Constraint("Coincident", 45, 3, -1, 1),
    Sketcher.Constraint("Coincident", 48, 3, -1, 1),
    Sketcher.Constraint("Coincident", 53, 3, -1, 1),
    Sketcher.Constraint("Coincident", 56, 3, -1, 1),
    Sketcher.Constraint("Coincident", 61, 3, -1, 1),
    Sketcher.Constraint("Coincident", 64, 3, -1, 1),
    Sketcher.Constraint("Coincident", 69, 3, -1, 1),
    Sketcher.Constraint("Coincident", 72, 3, -1, 1),
    Sketcher.Constraint("Coincident", 77, 3, -1, 1),
    Sketcher.Constraint("Coincident", 79, 3, -1, 1),
    Sketcher.Constraint("Radius", 2, 19.0),
    Sketcher.Constraint("Radius", 39, 19.0),
    Sketcher.Constraint("Radius", 42, 19.0),
    Sketcher.Constraint("Radius", 79, 19.0),
    Sketcher.Constraint("Radius", 0, 21.0),
    Sketcher.Constraint("Radius", 5, 21.0),
    Sketcher.Constraint("Radius", 8, 21.0),
    Sketcher.Constraint("Radius", 13, 21.0),
    Sketcher.Constraint("Radius", 16, 21.0),
    Sketcher.Constraint("Radius", 21, 21.0),
    Sketcher.Constraint("Radius", 24, 21.0),
    Sketcher.Constraint("Radius", 29, 21.0),
    Sketcher.Constraint("Radius", 32, 21.0),
    Sketcher.Constraint("Radius", 37, 21.0),
    Sketcher.Constraint("Radius", 40, 21.0),
    Sketcher.Constraint("Radius", 45, 21.0),
    Sketcher.Constraint("Radius", 48, 21.0),
    Sketcher.Constraint("Radius", 53, 21.0),
    Sketcher.Constraint("Radius", 56, 21.0),
    Sketcher.Constraint("Radius", 61, 21.0),
    Sketcher.Constraint("Radius", 64, 21.0),
    Sketcher.Constraint("Radius", 69, 21.0),
    Sketcher.Constraint("Radius", 72, 21.0),
    Sketcher.Constraint("Radius", 77, 21.0),
    Sketcher.Constraint("DistanceY", -1, 1, 0, 2, 1.5),
    Sketcher.Constraint("DistanceY", 2, 1, -1, 1, 1.5),
    Sketcher.Constraint("DistanceX", -1, 1, 36, 2, 1.5),
    Sketcher.Constraint("DistanceX", 37, 2, -1, 1, 1.5),
    Sketcher.Constraint("DistanceX", -1, 1, 40, 2, 1.5),
    Sketcher.Constraint("DistanceX", 42, 1, -1, 1, 1.5),
    Sketcher.Constraint("DistanceY", -1, 1, 76, 2, 1.5),
    Sketcher.Constraint("DistanceY", 77, 2, -1, 1, 1.5),
    Sketcher.Constraint("Radius", 7, 18.9943),
    Sketcher.Constraint("Radius", 10, 19.0057),
    Sketcher.Constraint("Radius", 15, 19.0115),
    Sketcher.Constraint("Radius", 18, 18.9886),
    Sketcher.Constraint("Radius", 23, 18.9886),
    Sketcher.Constraint("Radius", 26, 19.0115),
    Sketcher.Constraint("Radius", 31, 19.0057),
    Sketcher.Constraint("Radius", 34, 18.9943),
    Sketcher.Constraint("Radius", 47, 18.9943),
    Sketcher.Constraint("Radius", 50, 19.0057),
    Sketcher.Constraint("Radius", 55, 19.0115),
    Sketcher.Constraint("Radius", 58, 18.9886),
    Sketcher.Constraint("Radius", 63, 18.9886),
    Sketcher.Constraint("Radius", 66, 19.0115),
    Sketcher.Constraint("Radius", 71, 19.0057),
    Sketcher.Constraint("Radius", 74, 18.9943),
    Sketcher.Constraint("DistanceX", -1, 1, 6, 2, 17.55),
    Sketcher.Constraint("DistanceX", -1, 1, 10, 1, 17.55),
    Sketcher.Constraint("DistanceY", -1, 1, 31, 1, 17.55),
    Sketcher.Constraint("DistanceY", 33, 2, -1, 1, 17.55),
    Sketcher.Constraint("DistanceY", -1, 1, 46, 2, 17.55),
    Sketcher.Constraint("DistanceY", 50, 1, -1, 1, 17.55),
    Sketcher.Constraint("DistanceX", 71, 1, -1, 1, 17.55),
    Sketcher.Constraint("DistanceX", 73, 2, -1, 1, 17.55),
    Sketcher.Constraint("DistanceY", -1, 1, 10, 3, 0.002),
    Sketcher.Constraint("DistanceX", -1, 1, 18, 3, 0.009),
    Sketcher.Constraint("DistanceY", 18, 3, -1, 1, 0.007),
    Sketcher.Constraint("DistanceX", -1, 1, 23, 3, 0.007),
    Sketcher.Constraint("DistanceY", -1, 1, 23, 3, 0.009),
    Sketcher.Constraint("DistanceX", 31, 3, -1, 1, 0.002),
    Sketcher.Constraint("DistanceX", -1, 1, 50, 3, 0.002),
    Sketcher.Constraint("DistanceX", 58, 3, -1, 1, 0.007),
    Sketcher.Constraint("DistanceY", 58, 3, -1, 1, 0.009),
    Sketcher.Constraint("DistanceX", 63, 3, -1, 1, 0.009),
    Sketcher.Constraint("DistanceY", -1, 1, 63, 3, 0.007),
    Sketcher.Constraint("DistanceY", 71, 3, -1, 1, 0.002),
    Sketcher.Constraint("DistanceX", -1, 1, 15, 1, 16.205),
    Sketcher.Constraint("DistanceX", -1, 1, 17, 2, 16.205),
    Sketcher.Constraint("DistanceY", -1, 1, 22, 2, 16.205),
    Sketcher.Constraint("DistanceY", 26, 1, -1, 1, 16.205),
    Sketcher.Constraint("DistanceY", -1, 1, 55, 1, 16.205),
    Sketcher.Constraint("DistanceY", 57, 2, -1, 1, 16.205),
    Sketcher.Constraint("DistanceX", 62, 2, -1, 1, 16.205),
    Sketcher.Constraint("DistanceX", 66, 1, -1, 1, 16.205),
    Sketcher.Constraint("Distance", 4, 2.0057),
    Sketcher.Constraint("Distance", 6, 2.0057),
    Sketcher.Constraint("Distance", 9, 2.0057),
    Sketcher.Constraint("Distance", 11, 2.0057),
    Sketcher.Constraint("Distance", 12, 2.0057),
    Sketcher.Constraint("Distance", 14, 2.0057),
    Sketcher.Constraint("Distance", 17, 2.0057),
    Sketcher.Constraint("Distance", 19, 2.0057),
    Sketcher.Constraint("Distance", 20, 2.0057),
    Sketcher.Constraint("Distance", 22, 2.0057),
    Sketcher.Constraint("Distance", 25, 2.0057),
    Sketcher.Constraint("Distance", 27, 2.0057),
    Sketcher.Constraint("Distance", 28, 2.0057),
    Sketcher.Constraint("Distance", 30, 2.0057),
    Sketcher.Constraint("Distance", 33, 2.0057),
    Sketcher.Constraint("Distance", 35, 2.0057),
    Sketcher.Constraint("Distance", 44, 2.0057),
    Sketcher.Constraint("Distance", 46, 2.0057),
    Sketcher.Constraint("Distance", 49, 2.0057),
    Sketcher.Constraint("Distance", 51, 2.0057),
    Sketcher.Constraint("Distance", 52, 2.0057),
    Sketcher.Constraint("Distance", 54, 2.0057),
    Sketcher.Constraint("Distance", 57, 2.0057),
    Sketcher.Constraint("Distance", 59, 2.0057),
    Sketcher.Constraint("Distance", 60, 2.0057),
    Sketcher.Constraint("Distance", 62, 2.0057),
    Sketcher.Constraint("Distance", 65, 2.0057),
    Sketcher.Constraint("Distance", 67, 2.0057),
    Sketcher.Constraint("Distance", 68, 2.0057),
    Sketcher.Constraint("Distance", 70, 2.0057),
    Sketcher.Constraint("Distance", 73, 2.0057),
    Sketcher.Constraint("Distance", 75, 2.0057),
    Sketcher.Constraint("DistanceX", -1, 1, 7, 3, 0.0055),
    Sketcher.Constraint("DistanceY", -1, 1, 7, 3, 0.0015),
    Sketcher.Constraint("DistanceX", 10, 3, -1, 1, 0.0053),
    Sketcher.Constraint("DistanceX", 15, 3, -1, 1, 0.0096),
    Sketcher.Constraint("DistanceY", 15, 3, -1, 1, 0.0064),
    Sketcher.Constraint("DistanceX", 26, 3, -1, 1, 0.0064),
    Sketcher.Constraint("DistanceY", -1, 1, 26, 3, 0.0096),
    Sketcher.Constraint("DistanceY", 31, 3, -1, 1, 0.0053),
    Sketcher.Constraint("DistanceX", -1, 1, 34, 3, 0.0015),
    Sketcher.Constraint("DistanceY", 34, 3, -1, 1, 0.0055),
    Sketcher.Constraint("DistanceX", 47, 3, -1, 1, 0.0015),
    Sketcher.Constraint("DistanceY", -1, 1, 47, 3, 0.0055),
    Sketcher.Constraint("DistanceY", -1, 1, 50, 3, 0.0053),
    Sketcher.Constraint("DistanceX", -1, 1, 55, 3, 0.0064),
    Sketcher.Constraint("DistanceY", 55, 3, -1, 1, 0.0096),
    Sketcher.Constraint("DistanceX", -1, 1, 66, 3, 0.0096),
    Sketcher.Constraint("DistanceY", -1, 1, 66, 3, 0.0064),
    Sketcher.Constraint("DistanceX", -1, 1, 71, 3, 0.0053),
    Sketcher.Constraint("DistanceX", 74, 3, -1, 1, 0.0055),
    Sketcher.Constraint("DistanceY", 74, 3, -1, 1, 0.0015),
    Sketcher.Constraint("DistanceX", -1, 1, 4, 2, 20.3847),
    Sketcher.Constraint("DistanceX", -1, 1, 8, 2, 20.3847),
    Sketcher.Constraint("DistanceX", -1, 1, 13, 2, 16.0643),
    Sketcher.Constraint("DistanceX", -1, 1, 18, 1, 14.4417),
    Sketcher.Constraint("DistanceX", -1, 1, 20, 2, 13.5255),
    Sketcher.Constraint("DistanceX", -1, 1, 24, 2, 13.5255),
    Sketcher.Constraint("DistanceX", -1, 1, 29, 2, 5.0462),
    Sketcher.Constraint("DistanceX", -1, 1, 34, 1, 4.4264),
    Sketcher.Constraint("DistanceX", 44, 2, -1, 1, 5.0462),
    Sketcher.Constraint("DistanceX", 48, 2, -1, 1, 5.0462),
    Sketcher.Constraint("DistanceX", 53, 2, -1, 1, 13.5255),
    Sketcher.Constraint("DistanceX", 58, 1, -1, 1, 12.3466),
    Sketcher.Constraint("DistanceX", 60, 2, -1, 1, 16.0643),
    Sketcher.Constraint("DistanceX", 64, 2, -1, 1, 16.0643),
    Sketcher.Constraint("DistanceX", 69, 2, -1, 1, 20.3847),
    Sketcher.Constraint("DistanceX", 74, 1, -1, 1, 18.4772),
])
pocket1 = body.newObject("PartDesign::Pocket", "Pocket")
pocket1.Profile = sketch2
pocket1.Type = "ThroughAll"

doc.recompute()
